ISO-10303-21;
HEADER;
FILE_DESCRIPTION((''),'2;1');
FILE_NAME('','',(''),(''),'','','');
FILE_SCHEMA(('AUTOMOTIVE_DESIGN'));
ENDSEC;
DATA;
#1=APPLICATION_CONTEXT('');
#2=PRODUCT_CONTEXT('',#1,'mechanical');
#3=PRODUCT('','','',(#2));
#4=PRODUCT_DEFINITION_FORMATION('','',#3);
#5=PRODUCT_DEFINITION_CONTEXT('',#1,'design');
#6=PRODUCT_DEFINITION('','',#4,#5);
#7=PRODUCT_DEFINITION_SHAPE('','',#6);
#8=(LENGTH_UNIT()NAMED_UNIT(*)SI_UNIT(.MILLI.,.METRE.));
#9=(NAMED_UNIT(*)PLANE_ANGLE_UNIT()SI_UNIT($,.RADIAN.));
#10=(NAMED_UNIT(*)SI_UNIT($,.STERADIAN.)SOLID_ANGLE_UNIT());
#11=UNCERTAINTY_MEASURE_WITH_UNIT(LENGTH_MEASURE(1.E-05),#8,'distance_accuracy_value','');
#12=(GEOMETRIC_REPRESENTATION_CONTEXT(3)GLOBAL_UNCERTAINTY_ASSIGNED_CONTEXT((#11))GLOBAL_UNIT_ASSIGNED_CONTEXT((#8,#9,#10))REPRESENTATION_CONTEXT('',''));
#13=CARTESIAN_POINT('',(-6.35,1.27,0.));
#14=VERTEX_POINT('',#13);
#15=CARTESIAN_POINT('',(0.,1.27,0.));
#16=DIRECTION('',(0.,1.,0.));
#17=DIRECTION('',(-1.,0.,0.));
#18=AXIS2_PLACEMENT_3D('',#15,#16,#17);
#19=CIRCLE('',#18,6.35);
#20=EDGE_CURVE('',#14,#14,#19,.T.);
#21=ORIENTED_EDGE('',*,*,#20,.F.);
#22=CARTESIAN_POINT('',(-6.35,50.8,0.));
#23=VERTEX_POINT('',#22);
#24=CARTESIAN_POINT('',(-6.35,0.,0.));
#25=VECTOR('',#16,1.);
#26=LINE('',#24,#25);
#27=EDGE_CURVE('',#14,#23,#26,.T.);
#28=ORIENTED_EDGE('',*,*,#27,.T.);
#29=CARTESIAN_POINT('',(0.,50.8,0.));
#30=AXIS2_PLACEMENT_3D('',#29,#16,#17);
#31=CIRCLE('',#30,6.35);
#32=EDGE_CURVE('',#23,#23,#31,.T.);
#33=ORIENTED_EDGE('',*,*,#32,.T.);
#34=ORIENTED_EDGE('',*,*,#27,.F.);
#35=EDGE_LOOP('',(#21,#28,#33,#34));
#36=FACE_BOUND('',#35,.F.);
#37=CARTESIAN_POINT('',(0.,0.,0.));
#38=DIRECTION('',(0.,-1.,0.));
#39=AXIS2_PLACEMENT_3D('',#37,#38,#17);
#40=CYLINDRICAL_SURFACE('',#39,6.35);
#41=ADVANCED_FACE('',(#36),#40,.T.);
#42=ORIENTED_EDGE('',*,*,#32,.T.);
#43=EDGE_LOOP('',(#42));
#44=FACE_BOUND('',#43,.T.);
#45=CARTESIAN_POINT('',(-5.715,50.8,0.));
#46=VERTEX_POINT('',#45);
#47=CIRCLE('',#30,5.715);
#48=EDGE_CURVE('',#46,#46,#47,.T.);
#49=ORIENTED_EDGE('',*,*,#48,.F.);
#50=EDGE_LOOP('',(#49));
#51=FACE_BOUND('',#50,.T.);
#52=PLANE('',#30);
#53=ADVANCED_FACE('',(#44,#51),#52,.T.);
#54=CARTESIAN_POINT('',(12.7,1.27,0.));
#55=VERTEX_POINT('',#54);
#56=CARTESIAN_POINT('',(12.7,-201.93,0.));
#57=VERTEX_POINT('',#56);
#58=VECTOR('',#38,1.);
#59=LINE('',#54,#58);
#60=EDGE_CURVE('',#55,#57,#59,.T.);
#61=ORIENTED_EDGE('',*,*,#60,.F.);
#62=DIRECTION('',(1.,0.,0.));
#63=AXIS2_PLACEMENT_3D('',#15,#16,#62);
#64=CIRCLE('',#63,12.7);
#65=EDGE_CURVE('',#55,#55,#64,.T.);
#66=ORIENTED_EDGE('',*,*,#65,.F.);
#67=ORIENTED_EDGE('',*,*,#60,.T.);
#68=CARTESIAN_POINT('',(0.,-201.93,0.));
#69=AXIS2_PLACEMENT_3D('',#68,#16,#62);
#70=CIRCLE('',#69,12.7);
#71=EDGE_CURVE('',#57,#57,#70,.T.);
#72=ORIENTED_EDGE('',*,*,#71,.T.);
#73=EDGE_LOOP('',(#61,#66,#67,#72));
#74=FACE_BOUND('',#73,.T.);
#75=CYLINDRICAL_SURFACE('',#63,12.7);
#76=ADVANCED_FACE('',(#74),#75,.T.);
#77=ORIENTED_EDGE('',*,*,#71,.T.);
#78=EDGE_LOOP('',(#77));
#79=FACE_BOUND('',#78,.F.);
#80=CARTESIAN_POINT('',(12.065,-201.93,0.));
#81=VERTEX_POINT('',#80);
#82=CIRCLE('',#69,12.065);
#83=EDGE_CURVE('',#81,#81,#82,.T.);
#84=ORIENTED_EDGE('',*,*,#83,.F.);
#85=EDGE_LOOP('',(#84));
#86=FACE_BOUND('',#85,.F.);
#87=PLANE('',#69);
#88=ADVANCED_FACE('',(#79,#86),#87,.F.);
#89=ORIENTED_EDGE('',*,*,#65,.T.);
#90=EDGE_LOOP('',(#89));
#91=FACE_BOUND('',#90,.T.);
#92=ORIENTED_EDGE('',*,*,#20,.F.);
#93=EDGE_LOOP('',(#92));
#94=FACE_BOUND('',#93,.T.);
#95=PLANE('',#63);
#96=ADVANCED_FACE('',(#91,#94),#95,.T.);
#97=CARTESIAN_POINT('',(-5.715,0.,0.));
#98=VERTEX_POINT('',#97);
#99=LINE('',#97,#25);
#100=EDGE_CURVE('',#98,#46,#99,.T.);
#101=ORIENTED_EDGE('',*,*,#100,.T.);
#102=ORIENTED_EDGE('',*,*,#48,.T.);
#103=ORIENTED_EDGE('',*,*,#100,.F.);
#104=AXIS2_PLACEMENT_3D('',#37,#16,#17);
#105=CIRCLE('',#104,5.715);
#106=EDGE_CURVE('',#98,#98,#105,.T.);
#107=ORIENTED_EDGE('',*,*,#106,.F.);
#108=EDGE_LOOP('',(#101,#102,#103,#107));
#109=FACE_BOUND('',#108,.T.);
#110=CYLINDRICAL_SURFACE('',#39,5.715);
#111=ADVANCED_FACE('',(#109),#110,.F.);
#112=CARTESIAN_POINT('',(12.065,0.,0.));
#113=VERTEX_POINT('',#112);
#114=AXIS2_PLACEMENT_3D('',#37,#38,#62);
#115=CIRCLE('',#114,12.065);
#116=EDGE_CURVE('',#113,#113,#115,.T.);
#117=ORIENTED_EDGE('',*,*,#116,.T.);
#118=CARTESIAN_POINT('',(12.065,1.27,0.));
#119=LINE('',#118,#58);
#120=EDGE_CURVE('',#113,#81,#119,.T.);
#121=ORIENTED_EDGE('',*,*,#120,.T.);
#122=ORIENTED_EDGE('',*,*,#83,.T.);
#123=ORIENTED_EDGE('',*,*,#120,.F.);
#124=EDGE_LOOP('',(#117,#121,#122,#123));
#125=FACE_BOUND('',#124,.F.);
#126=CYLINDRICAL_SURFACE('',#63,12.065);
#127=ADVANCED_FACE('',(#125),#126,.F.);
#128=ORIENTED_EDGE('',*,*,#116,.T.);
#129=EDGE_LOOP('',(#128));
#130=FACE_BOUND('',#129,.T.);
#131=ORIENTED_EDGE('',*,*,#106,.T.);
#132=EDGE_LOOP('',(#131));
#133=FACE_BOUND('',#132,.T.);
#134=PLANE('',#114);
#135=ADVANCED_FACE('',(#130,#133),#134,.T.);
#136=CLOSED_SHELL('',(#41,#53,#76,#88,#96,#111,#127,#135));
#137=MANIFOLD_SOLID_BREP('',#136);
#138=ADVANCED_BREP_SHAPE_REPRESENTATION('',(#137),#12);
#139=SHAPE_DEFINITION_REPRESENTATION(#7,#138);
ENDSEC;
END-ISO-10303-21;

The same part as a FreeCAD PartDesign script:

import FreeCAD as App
import Part
import Sketcher
from FreeCAD import Vector
Q = App.Units.Quantity

doc = App.newDocument("Part")
body = doc.addObject("PartDesign::Body", "Body")

# Sketch on XZ plane
sketch1 = doc.addObject("Sketcher::SketchObject", "Sketch")
body.addObject(sketch1)
sketch1.AttachmentSupport = (doc.XZ_Plane, [""])
sketch1.MapMode = "FlatFace"
sketch1.addGeometry(Part.Circle(Vector(0, 0, 0), Vector(0, 0, 1), 6), False)
sketch1.addGeometry(Part.Circle(Vector(0, 0, 0), Vector(0, 0, 1), 6), False)
sketch1.addConstraint(Sketcher.Constraint("Coincident", 0, 3, -1, 1))
sketch1.addConstraint(Sketcher.Constraint("Coincident", 1, 3, -1, 1))
sketch1.addConstraint(Sketcher.Constraint("Diameter", 0, Q("0.5 in")))
sketch1.addConstraint(Sketcher.Constraint("Diameter", 1, Q("0.45 in")))
pad1 = doc.addObject("PartDesign::Pad", "Pad")
body.addObject(pad1)
pad1.Profile = sketch1
pad1.Length = Q("2 in")
pad1.Reversed = True

# Sketch on XZ plane
sketch2 = doc.addObject("Sketcher::SketchObject", "Sketch001")
body.addObject(sketch2)
sketch2.AttachmentSupport = (doc.XZ_Plane, [""])
sketch2.MapMode = "FlatFace"
sketch2.addGeometry(Part.Circle(Vector(0, 0, 0), Vector(0, 0, 1), 12), False)
sketch2.addGeometry(Part.Circle(Vector(0, 0, 0), Vector(0, 0, 1), 6), False)
sketch2.addConstraint(Sketcher.Constraint("Coincident", 0, 3, -1, 1))
sketch2.addConstraint(Sketcher.Constraint("Coincident", 1, 3, -1, 1))
sketch2.addConstraint(Sketcher.Constraint("Diameter", 0, Q("0.95 in")))
sketch2.addConstraint(Sketcher.Constraint("Diameter", 1, Q("0.5 in")))
pad2 = doc.addObject("PartDesign::Pad", "Pad001")
body.addObject(pad2)
pad2.Profile = sketch2
pad2.Length = Q("0.05 in")
pad2.Reversed = True

# Sketch on XZ plane
sketch3 = doc.addObject("Sketcher::SketchObject", "Sketch002")
body.addObject(sketch3)
sketch3.AttachmentSupport = (doc.XZ_Plane, [""])
sketch3.MapMode = "FlatFace"
sketch3.AttachmentOffset = App.Placement(Vector(0, 0, -0.05 * 25.4), App.Rotation())
sketch3.addGeometry(Part.Circle(Vector(0, 0, 0), Vector(0, 0, 1), 13), False)
sketch3.addGeometry(Part.Circle(Vector(0, 0, 0), Vector(0, 0, 1), 12), False)
sketch3.addConstraint(Sketcher.Constraint("Coincident", 0, 3, -1, 1))
sketch3.addConstraint(Sketcher.Constraint("Coincident", 1, 3, -1, 1))
sketch3.addConstraint(Sketcher.Constraint("Diameter", 0, Q("1 in")))
sketch3.addConstraint(Sketcher.Constraint("Diameter", 1, Q("0.95 in")))
pad3 = doc.addObject("PartDesign::Pad", "Pad002")
body.addObject(pad3)
pad3.Profile = sketch3
pad3.Length = Q("8 in")

doc.recompute()
